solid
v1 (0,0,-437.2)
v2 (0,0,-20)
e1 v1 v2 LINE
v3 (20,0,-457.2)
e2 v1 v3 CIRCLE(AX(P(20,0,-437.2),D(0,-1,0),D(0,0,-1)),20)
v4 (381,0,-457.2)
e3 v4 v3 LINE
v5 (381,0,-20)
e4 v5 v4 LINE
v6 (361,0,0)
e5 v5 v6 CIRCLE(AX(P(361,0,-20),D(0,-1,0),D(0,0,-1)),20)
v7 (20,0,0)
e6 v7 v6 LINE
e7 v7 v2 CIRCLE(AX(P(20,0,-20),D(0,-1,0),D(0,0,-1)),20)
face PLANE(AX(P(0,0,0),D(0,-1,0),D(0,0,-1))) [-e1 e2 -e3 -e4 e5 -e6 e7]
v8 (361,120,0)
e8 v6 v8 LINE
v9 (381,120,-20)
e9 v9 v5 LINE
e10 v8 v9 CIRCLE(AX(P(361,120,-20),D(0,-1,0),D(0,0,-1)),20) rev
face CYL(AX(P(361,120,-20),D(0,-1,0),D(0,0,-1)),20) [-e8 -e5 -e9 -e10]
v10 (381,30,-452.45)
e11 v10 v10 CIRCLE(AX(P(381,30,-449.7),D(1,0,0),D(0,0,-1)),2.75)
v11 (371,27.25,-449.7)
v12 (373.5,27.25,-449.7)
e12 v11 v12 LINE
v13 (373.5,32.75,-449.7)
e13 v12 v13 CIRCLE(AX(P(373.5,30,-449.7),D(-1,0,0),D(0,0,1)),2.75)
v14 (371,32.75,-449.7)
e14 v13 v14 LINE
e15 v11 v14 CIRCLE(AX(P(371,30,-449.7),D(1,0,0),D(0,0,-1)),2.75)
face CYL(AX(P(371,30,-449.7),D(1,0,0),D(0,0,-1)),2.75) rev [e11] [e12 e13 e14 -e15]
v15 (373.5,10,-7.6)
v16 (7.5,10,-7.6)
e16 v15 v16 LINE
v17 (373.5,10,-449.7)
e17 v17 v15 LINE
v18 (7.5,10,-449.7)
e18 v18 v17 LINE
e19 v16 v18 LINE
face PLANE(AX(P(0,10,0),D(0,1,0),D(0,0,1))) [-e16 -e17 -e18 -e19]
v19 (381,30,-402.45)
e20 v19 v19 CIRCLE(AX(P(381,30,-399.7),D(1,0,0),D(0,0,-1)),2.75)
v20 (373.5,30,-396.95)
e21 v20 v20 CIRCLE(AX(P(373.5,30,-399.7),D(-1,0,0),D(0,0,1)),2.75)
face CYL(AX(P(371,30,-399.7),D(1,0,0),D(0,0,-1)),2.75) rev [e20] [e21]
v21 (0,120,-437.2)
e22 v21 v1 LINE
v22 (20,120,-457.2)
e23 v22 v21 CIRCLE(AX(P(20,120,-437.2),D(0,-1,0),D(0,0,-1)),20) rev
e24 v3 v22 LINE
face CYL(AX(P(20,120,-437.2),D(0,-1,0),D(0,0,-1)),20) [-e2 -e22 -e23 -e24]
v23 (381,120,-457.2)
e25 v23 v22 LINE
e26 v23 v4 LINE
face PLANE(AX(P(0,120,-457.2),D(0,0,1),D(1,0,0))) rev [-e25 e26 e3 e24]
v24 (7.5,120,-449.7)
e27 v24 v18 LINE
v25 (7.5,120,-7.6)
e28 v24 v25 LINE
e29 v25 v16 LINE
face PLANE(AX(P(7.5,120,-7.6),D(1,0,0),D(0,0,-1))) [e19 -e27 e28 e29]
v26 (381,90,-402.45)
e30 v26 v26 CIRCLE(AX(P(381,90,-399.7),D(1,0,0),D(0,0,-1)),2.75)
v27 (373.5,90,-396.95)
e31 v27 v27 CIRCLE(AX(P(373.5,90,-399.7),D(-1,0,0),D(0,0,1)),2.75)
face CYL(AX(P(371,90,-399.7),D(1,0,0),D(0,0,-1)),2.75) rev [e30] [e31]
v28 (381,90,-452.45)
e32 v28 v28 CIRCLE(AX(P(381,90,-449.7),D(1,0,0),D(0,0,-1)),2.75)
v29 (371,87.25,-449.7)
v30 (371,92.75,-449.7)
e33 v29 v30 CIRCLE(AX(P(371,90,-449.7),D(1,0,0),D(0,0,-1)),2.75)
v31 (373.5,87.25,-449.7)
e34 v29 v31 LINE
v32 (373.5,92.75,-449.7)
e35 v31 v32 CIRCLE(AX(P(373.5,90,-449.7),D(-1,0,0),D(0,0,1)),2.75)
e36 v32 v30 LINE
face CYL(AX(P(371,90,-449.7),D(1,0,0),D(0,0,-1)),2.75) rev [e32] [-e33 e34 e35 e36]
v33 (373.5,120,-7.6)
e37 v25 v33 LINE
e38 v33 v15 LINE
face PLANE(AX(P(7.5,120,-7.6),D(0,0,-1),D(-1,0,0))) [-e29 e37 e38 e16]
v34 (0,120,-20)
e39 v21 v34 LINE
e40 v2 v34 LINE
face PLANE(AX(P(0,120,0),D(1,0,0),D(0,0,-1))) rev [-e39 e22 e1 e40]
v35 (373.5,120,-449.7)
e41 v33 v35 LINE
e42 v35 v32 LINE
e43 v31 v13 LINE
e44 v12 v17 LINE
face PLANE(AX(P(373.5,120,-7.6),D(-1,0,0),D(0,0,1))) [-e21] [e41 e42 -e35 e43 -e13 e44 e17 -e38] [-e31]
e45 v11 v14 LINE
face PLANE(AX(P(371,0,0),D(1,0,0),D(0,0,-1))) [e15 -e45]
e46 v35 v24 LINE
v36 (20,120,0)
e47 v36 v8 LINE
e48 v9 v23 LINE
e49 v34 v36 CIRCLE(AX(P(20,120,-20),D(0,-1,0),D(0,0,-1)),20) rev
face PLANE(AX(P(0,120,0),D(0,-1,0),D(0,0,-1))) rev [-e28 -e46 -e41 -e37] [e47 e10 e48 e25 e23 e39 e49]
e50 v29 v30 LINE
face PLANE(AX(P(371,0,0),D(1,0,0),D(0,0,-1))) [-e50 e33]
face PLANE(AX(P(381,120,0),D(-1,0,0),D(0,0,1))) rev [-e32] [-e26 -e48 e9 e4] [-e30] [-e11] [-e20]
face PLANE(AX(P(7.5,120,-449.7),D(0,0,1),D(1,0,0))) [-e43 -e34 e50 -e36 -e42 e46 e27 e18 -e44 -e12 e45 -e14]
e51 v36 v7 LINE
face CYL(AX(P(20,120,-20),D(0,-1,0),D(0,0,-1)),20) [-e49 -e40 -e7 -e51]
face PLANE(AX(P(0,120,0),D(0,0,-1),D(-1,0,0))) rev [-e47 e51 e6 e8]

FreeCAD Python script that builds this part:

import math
import FreeCAD as App
import Part
import Sketcher

V = App.Vector
Q = App.Units.Quantity


def edges_at(feature, points):
    """Names of the edges that pass closest to the given points."""
    edges = feature.Shape.Edges
    near = lambda p: min(range(len(edges)), key=lambda i: edges[i].distToShape(Part.Vertex(*p))[0])
    return sorted({f"Edge{near(p) + 1}" for p in points})

doc = App.newDocument("Part")
body = doc.addObject("PartDesign::Body", "Body")

sketch1 = body.newObject("Sketcher::SketchObject", "Sketch")
sketch1.AttachmentSupport = (doc.getObject("XZ_Plane"), [""])
sketch1.MapMode = "FlatFace"
sketch1.addGeometry([
    Part.LineSegment(V(0, -457, 0), V(0, 0, 0)),
    Part.LineSegment(V(0, 0, 0), V(381, 0, 0)),
    Part.LineSegment(V(381, 0, 0), V(381, -457, 0)),
    Part.LineSegment(V(381, -457, 0), V(0, -457, 0)),
    Part.LineSegment(V(374, -8, 0), V(8, -8, 0)),
    Part.LineSegment(V(8, -8, 0), V(8, -450, 0)),
    Part.LineSegment(V(8, -450, 0), V(374, -450, 0)),
    Part.LineSegment(V(374, -450, 0), V(374, -8, 0)),
], False)
sketch1.addConstraint([
    Sketcher.Constraint("Coincident", 0, 2, 1, 1),
    Sketcher.Constraint("Coincident", 1, 2, 2, 1),
    Sketcher.Constraint("Coincident", 2, 2, 3, 1),
    Sketcher.Constraint("Coincident", 3, 2, 0, 1),
    Sketcher.Constraint("Coincident", 4, 2, 5, 1),
    Sketcher.Constraint("Coincident", 5, 2, 6, 1),
    Sketcher.Constraint("Coincident", 6, 2, 7, 1),
    Sketcher.Constraint("Coincident", 7, 2, 4, 1),
    Sketcher.Constraint("Vertical", 0),
    Sketcher.Constraint("Horizontal", 1),
    Sketcher.Constraint("Vertical", 2),
    Sketcher.Constraint("Horizontal", 3),
    Sketcher.Constraint("Horizontal", 4),
    Sketcher.Constraint("Vertical", 5),
    Sketcher.Constraint("Horizontal", 6),
    Sketcher.Constraint("Vertical", 7),
    Sketcher.Constraint("Coincident", 0, 2, -1, 1),
    Sketcher.Constraint("DistanceX", 1, 1, 1, 2, Q("381 mm")),
    Sketcher.Constraint("DistanceX", 4, 2, 4, 1, Q("366 mm")),
    Sketcher.Constraint("DistanceY", 0, 1, 0, 2, Q("457.2 mm")),
    Sketcher.Constraint("DistanceY", 5, 2, 5, 1, Q("442.1 mm")),
    Sketcher.Constraint("DistanceX", -1, 1, 4, 2, Q("7.5 mm")),
    Sketcher.Constraint("DistanceY", 4, 2, -1, 1, Q("7.6 mm")),
])
pad1 = body.newObject("PartDesign::Pad", "Pad")
pad1.Profile = sketch1
pad1.Length = 120
pad1.Reversed = True

sketch2 = body.newObject("Sketcher::SketchObject", "Sketch001")
sketch2.AttachmentSupport = (doc.getObject("XZ_Plane"), [""])
sketch2.MapMode = "FlatFace"
sketch2.addGeometry([
    Part.LineSegment(V(8, -8, 0), V(8, -450, 0)),
    Part.LineSegment(V(8, -450, 0), V(374, -450, 0)),
    Part.LineSegment(V(374, -450, 0), V(374, -8, 0)),
    Part.LineSegment(V(374, -8, 0), V(8, -8, 0)),
], False)
sketch2.addConstraint([
    Sketcher.Constraint("Coincident", 0, 2, 1, 1),
    Sketcher.Constraint("Coincident", 1, 2, 2, 1),
    Sketcher.Constraint("Coincident", 2, 2, 3, 1),
    Sketcher.Constraint("Coincident", 3, 2, 0, 1),
    Sketcher.Constraint("Vertical", 0),
    Sketcher.Constraint("Horizontal", 1),
    Sketcher.Constraint("Vertical", 2),
    Sketcher.Constraint("Horizontal", 3),
    Sketcher.Constraint("DistanceX", 1, 1, 1, 2, Q("366 mm")),
    Sketcher.Constraint("DistanceY", 0, 2, 0, 1, Q("442.1 mm")),
    Sketcher.Constraint("DistanceX", -1, 1, 0, 2, Q("7.5 mm")),
    Sketcher.Constraint("DistanceY", 0, 2, -1, 1, Q("449.7 mm")),
])
pad2 = body.newObject("PartDesign::Pad", "Pad001")
pad2.Profile = sketch2
pad2.Length = 10
pad2.Reversed = True
doc.recompute()

fillet = body.newObject("PartDesign::Fillet", "Fillet")
fillet.Base = (pad2, edges_at(pad2, [(0, 60, -457.2), (381, 60, 0), (0, 60, 0)]))
fillet.Radius = 20

sketch3 = body.newObject("Sketcher::SketchObject", "Sketch002")
sketch3.AttachmentSupport = (doc.getObject("YZ_Plane"), [""])
sketch3.MapMode = "FlatFace"
sketch3.AttachmentOffset = App.Placement(V(0, 0, 381), App.Rotation())
sketch3.addGeometry([
    Part.ArcOfCircle(Part.Circle(V(90, -399.7, 0), V(0, 0, 1), 2.8), math.radians(-90), math.radians(180)),
    Part.ArcOfCircle(Part.Circle(V(90, -399.7, 0), V(0, 0, 1), 2.8), math.radians(-180), math.radians(-90)),
    Part.ArcOfCircle(Part.Circle(V(90, -449.7, 0), V(0, 0, 1), 2.8), math.radians(-90), math.radians(90)),
    Part.ArcOfCircle(Part.Circle(V(90, -449.7, 0), V(0, 0, 1), 2.8), math.radians(90), math.radians(180)),
    Part.ArcOfCircle(Part.Circle(V(90, -449.7, 0), V(0, 0, 1), 2.8), math.radians(-180), math.radians(-90)),
    Part.ArcOfCircle(Part.Circle(V(30, -449.7, 0), V(0, 0, 1), 2.8), math.radians(-90), math.radians(0)),
    Part.ArcOfCircle(Part.Circle(V(30, -449.7, 0), V(0, 0, 1), 2.8), math.radians(0), math.radians(90)),
    Part.ArcOfCircle(Part.Circle(V(30, -449.7, 0), V(0, 0, 1), 2.8), math.radians(90), math.radians(270)),
    Part.ArcOfCircle(Part.Circle(V(30, -399.7, 0), V(0, 0, 1), 2.8), math.radians(-90), math.radians(0)),
    Part.ArcOfCircle(Part.Circle(V(30, -399.7, 0), V(0, 0, 1), 2.8), math.radians(0), math.radians(270)),
], False)
sketch3.addConstraint([
    Sketcher.Constraint("Tangent", 0, 1, 1, 2),
    Sketcher.Constraint("Coincident", 1, 1, 0, 2),
    Sketcher.Constraint("Tangent", 2, 2, 3, 1),
    Sketcher.Constraint("Tangent", 3, 2, 4, 1),
    Sketcher.Constraint("Tangent", 4, 2, 2, 1),
    Sketcher.Constraint("Tangent", 5, 2, 6, 1),
    Sketcher.Constraint("Tangent", 6, 2, 7, 1),
    Sketcher.Constraint("Tangent", 7, 2, 5, 1),
    Sketcher.Constraint("Tangent", 8, 1, 9, 2),
    Sketcher.Constraint("Coincident", 9, 1, 8, 2),
    Sketcher.Constraint("Equal", 1, 2),
    Sketcher.Constraint("Equal", 4, 5),
    Sketcher.Constraint("Equal", 7, 8),
    Sketcher.Constraint("Horizontal", 4, 3, 5, 3),
    Sketcher.Constraint("Horizontal", 1, 3, 8, 3),
    Sketcher.Constraint("Horizontal", 9, 3, 1, 1),
    Sketcher.Constraint("Horizontal", 7, 3, 3, 2),
    Sketcher.Constraint("Horizontal", 3, 2, 5, 2),
    Sketcher.Constraint("Horizontal", 1, 1, 9, 1),
    Sketcher.Constraint("Vertical", 1, 3, 2, 3),
    Sketcher.Constraint("Vertical", 7, 3, 8, 3),
    Sketcher.Constraint("Vertical", 4, 3, 0, 1),
    Sketcher.Constraint("Vertical", 0, 1, 2, 2),
    Sketcher.Constraint("Vertical", 2, 2, 4, 2),
    Sketcher.Constraint("Vertical", 9, 3, 6, 2),
    Sketcher.Constraint("Vertical", 6, 2, 7, 2),
    Sketcher.Constraint("Vertical", 7, 2, 8, 1),
    Sketcher.Constraint("Radius", 0, Q("2.75 mm")),
    Sketcher.Constraint("DistanceX", -1, 1, 0, 3, Q("90 mm")),
    Sketcher.Constraint("DistanceX", -1, 1, 5, 3, Q("30 mm")),
    Sketcher.Constraint("DistanceY", 2, 3, 0, 3, Q("50 mm")),
    Sketcher.Constraint("DistanceY", 0, 3, -1, 1, Q("399.7 mm")),
])
pocket1 = body.newObject("PartDesign::Pocket", "Pocket")
pocket1.Profile = sketch3
pocket1.Length = 10

doc.recompute()
